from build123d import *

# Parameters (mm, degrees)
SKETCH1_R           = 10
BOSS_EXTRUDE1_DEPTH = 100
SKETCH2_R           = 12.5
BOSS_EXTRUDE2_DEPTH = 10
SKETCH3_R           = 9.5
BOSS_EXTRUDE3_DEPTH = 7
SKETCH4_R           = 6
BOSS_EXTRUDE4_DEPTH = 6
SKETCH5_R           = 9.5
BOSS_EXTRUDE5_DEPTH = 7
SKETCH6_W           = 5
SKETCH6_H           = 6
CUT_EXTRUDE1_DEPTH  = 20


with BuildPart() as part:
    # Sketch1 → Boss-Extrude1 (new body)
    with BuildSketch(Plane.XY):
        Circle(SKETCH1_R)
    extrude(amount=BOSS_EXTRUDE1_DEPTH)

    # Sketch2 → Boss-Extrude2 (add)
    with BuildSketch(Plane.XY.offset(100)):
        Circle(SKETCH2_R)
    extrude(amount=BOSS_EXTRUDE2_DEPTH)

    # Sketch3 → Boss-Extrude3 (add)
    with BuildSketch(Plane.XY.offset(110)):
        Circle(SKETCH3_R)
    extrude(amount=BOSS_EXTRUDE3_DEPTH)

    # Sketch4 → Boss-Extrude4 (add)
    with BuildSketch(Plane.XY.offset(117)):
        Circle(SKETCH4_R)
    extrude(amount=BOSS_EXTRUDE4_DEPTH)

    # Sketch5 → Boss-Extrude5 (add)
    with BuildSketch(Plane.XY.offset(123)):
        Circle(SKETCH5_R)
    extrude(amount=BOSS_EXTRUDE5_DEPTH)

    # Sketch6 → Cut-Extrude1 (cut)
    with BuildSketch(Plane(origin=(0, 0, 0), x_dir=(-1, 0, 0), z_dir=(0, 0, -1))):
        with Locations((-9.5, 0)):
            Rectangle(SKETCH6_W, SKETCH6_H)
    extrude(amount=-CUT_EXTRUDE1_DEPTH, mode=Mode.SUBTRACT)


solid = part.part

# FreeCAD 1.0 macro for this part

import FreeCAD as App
import Part
import Sketcher

V = App.Vector
Q = App.Units.Quantity


def add_polygon(sketch, points):
    """Adds a closed chain of lines whose ends are joined by coincident constraints."""
    first, n = sketch.GeometryCount, len(points)
    for a, b in zip(points, points[1:] + points[:1]):
        sketch.addGeometry(Part.LineSegment(App.Vector(*a, 0), App.Vector(*b, 0)), False)
    for i in range(n):
        sketch.addConstraint(Sketcher.Constraint("Coincident", first + i, 2, first + (i + 1) % n, 1))

doc = App.newDocument("Part")
body = doc.addObject("PartDesign::Body", "Body")

# Sketch on XY plane
sketch1 = body.newObject("Sketcher::SketchObject", "Sketch")
sketch1.AttachmentSupport = (doc.getObject("XY_Plane"), [""])
sketch1.MapMode = "FlatFace"
sketch1.addGeometry(Part.Circle(V(0, 0, 0), V(0, 0, 1), 10), False)
sketch1.addConstraint([
    Sketcher.Constraint("Coincident", 0, 3, -1, 1),
    Sketcher.Constraint("Diameter", 0, Q("20 mm")),
])
pad1 = body.newObject("PartDesign::Pad", "Pad")
pad1.Profile = sketch1
pad1.Length = 100

# Sketch on XY plane
sketch2 = body.newObject("Sketcher::SketchObject", "Sketch001")
sketch2.AttachmentSupport = (doc.getObject("XY_Plane"), [""])
sketch2.MapMode = "FlatFace"
sketch2.AttachmentOffset = App.Placement(V(0, 0, 100), App.Rotation())
sketch2.addGeometry(Part.Circle(V(0, 0, 0), V(0, 0, 1), 12), False)
sketch2.addConstraint([
    Sketcher.Constraint("Coincident", 0, 3, -1, 1),
    Sketcher.Constraint("Diameter", 0, Q("25 mm")),
])
pad2 = body.newObject("PartDesign::Pad", "Pad001")
pad2.Profile = sketch2
pad2.Length = 10

# Sketch on XY plane
sketch3 = body.newObject("Sketcher::SketchObject", "Sketch002")
sketch3.AttachmentSupport = (doc.getObject("XY_Plane"), [""])
sketch3.MapMode = "FlatFace"
sketch3.AttachmentOffset = App.Placement(V(0, 0, 110), App.Rotation())
sketch3.addGeometry(Part.Circle(V(0, 0, 0), V(0, 0, 1), 10), False)
sketch3.addConstraint([
    Sketcher.Constraint("Coincident", 0, 3, -1, 1),
    Sketcher.Constraint("Diameter", 0, Q("19 mm")),
])
pad3 = body.newObject("PartDesign::Pad", "Pad002")
pad3.Profile = sketch3
pad3.Length = 7

# Sketch on XY plane
sketch4 = body.newObject("Sketcher::SketchObject", "Sketch003")
sketch4.AttachmentSupport = (doc.getObject("XY_Plane"), [""])
sketch4.MapMode = "FlatFace"
sketch4.AttachmentOffset = App.Placement(V(0, 0, 117), App.Rotation())
sketch4.addGeometry(Part.Circle(V(0, 0, 0), V(0, 0, 1), 6), False)
sketch4.addConstraint([
    Sketcher.Constraint("Coincident", 0, 3, -1, 1),
    Sketcher.Constraint("Diameter", 0, Q("12 mm")),
])
pad4 = body.newObject("PartDesign::Pad", "Pad003")
pad4.Profile = sketch4
pad4.Length = 6

# Sketch on XY plane
sketch5 = body.newObject("Sketcher::SketchObject", "Sketch004")
sketch5.AttachmentSupport = (doc.getObject("XY_Plane"), [""])
sketch5.MapMode = "FlatFace"
sketch5.AttachmentOffset = App.Placement(V(0, 0, 123), App.Rotation())
sketch5.addGeometry(Part.Circle(V(0, 0, 0), V(0, 0, 1), 10), False)
sketch5.addConstraint([
    Sketcher.Constraint("Coincident", 0, 3, -1, 1),
    Sketcher.Constraint("Diameter", 0, Q("19 mm")),
])
pad5 = body.newObject("PartDesign::Pad", "Pad004")
pad5.Profile = sketch5
pad5.Length = 7

# Sketch on XY plane
sketch6 = body.newObject("Sketcher::SketchObject", "Sketch005")
sketch6.AttachmentSupport = (doc.getObject("XY_Plane"), [""])
sketch6.MapMode = "FlatFace"
add_polygon(sketch6, [(12, 3), (12, -3), (7, -3), (7, 3)])  # lines 0-3
sketch6.addConstraint([
    Sketcher.Constraint("Vertical", 0),
    Sketcher.Constraint("Horizontal", 1),
    Sketcher.Constraint("Vertical", 2),
    Sketcher.Constraint("Horizontal", 3),
    Sketcher.Constraint("DistanceX", 1, 2, 1, 1, Q("5 mm")),
    Sketcher.Constraint("DistanceY", 0, 2, 0, 1, Q("6 mm")),
    Sketcher.Constraint("DistanceX", -1, 1, 0, 2, Q("12 mm")),
    Sketcher.Constraint("DistanceY", 0, 2, -1, 1, Q("3 mm")),
])
pocket1 = body.newObject("PartDesign::Pocket", "Pocket")
pocket1.Profile = sketch6
pocket1.Length = 20
pocket1.Reversed = True

doc.recompute()
